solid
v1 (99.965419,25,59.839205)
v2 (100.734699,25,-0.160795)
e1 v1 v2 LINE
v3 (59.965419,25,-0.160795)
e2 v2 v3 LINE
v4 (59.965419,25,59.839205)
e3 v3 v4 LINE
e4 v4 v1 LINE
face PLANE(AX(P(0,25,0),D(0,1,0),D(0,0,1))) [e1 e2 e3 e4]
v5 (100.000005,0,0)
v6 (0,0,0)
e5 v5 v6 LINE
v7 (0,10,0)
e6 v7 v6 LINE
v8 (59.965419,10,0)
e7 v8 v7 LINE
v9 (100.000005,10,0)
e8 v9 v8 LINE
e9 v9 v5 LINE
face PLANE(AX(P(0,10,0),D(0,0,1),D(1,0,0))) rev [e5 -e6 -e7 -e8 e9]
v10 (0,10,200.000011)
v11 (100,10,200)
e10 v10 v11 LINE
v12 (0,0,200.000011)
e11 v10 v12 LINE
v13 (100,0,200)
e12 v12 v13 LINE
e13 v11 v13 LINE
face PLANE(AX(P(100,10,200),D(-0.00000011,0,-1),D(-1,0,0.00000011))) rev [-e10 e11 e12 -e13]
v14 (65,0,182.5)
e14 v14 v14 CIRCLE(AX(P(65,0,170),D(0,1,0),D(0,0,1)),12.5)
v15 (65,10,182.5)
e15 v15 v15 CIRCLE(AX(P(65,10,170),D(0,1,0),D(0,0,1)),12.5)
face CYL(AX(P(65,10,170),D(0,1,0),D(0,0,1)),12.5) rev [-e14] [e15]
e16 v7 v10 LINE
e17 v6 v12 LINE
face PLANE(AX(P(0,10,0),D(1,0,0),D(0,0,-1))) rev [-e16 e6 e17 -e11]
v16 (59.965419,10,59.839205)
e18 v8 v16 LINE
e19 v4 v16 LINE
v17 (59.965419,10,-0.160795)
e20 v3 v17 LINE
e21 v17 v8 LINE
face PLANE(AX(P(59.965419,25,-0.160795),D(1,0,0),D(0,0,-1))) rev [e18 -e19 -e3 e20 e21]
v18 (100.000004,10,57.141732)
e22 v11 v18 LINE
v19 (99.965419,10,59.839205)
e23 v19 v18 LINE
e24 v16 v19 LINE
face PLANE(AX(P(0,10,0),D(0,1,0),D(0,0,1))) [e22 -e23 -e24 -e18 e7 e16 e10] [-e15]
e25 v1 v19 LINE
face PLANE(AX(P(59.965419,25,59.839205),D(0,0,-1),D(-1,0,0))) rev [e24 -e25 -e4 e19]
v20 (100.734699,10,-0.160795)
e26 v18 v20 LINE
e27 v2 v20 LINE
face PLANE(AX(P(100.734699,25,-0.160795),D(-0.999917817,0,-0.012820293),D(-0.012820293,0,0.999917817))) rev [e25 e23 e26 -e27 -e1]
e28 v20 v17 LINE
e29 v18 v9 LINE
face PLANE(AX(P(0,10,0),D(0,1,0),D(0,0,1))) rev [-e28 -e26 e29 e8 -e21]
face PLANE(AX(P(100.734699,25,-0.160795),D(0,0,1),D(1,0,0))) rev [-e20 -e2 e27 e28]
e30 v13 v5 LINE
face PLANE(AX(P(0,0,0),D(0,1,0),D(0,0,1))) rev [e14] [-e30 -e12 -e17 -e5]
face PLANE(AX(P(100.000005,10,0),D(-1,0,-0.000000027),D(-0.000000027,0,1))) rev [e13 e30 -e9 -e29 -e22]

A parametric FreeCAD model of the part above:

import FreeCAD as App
import Part
import Sketcher
from FreeCAD import Vector
Q = App.Units.Quantity

doc = App.newDocument("Part")
body = doc.addObject("PartDesign::Body", "Body")

# Sketch on XZ plane
sketch1 = doc.addObject("Sketcher::SketchObject", "Sketch")
body.addObject(sketch1)
sketch1.AttachmentSupport = (doc.XZ_Plane, [""])
sketch1.MapMode = "FlatFace"
sketch1.addGeometry([
    Part.LineSegment(Vector(100.000005, 0, 0), Vector(0, 0, 0)),
    Part.LineSegment(Vector(0, 0, 0), Vector(0, 200.000011, 0)),
    Part.LineSegment(Vector(0, 200.000011, 0), Vector(100, 200, 0)),
    Part.LineSegment(Vector(100, 200, 0), Vector(100.000005, 0, 0)),
], False)
sketch1.addConstraint([
    Sketcher.Constraint("Coincident", 0, 2, 1, 1),
    Sketcher.Constraint("Coincident", 1, 2, 2, 1),
    Sketcher.Constraint("Coincident", 2, 2, 3, 1),
    Sketcher.Constraint("Coincident", 3, 2, 0, 1),
    Sketcher.Constraint("Horizontal", 0),
    Sketcher.Constraint("Vertical", 1),
    Sketcher.Constraint("Coincident", 0, 2, -1, 1),
    Sketcher.Constraint("Perpendicular", 2, 3),
    Sketcher.Constraint("Angle", 2, Q("-0.000006 deg")),
    Sketcher.Constraint("Distance", 2, Q("100 mm")),
    Sketcher.Constraint("Distance", 3, Q("200 mm")),
])
pad1 = doc.addObject("PartDesign::Pad", "Pad")
body.addObject(pad1)
pad1.Profile = sketch1
pad1.Length = 10
pad1.Reversed = True

# Sketch on XZ plane
sketch2 = doc.addObject("Sketcher::SketchObject", "Sketch001")
body.addObject(sketch2)
sketch2.AttachmentSupport = (doc.XZ_Plane, [""])
sketch2.MapMode = "FlatFace"
sketch2.AttachmentOffset = App.Placement(Vector(0, 0, -10), App.Rotation())
sketch2.addGeometry([
    Part.LineSegment(Vector(59.965419, -0.160795, 0), Vector(59.965419, 59.839205, 0)),
    Part.LineSegment(Vector(59.965419, 59.839205, 0), Vector(99.965419, 59.839205, 0)),
    Part.LineSegment(Vector(99.965419, 59.839205, 0), Vector(100.734699, -0.160795, 0)),
    Part.LineSegment(Vector(100.734699, -0.160795, 0), Vector(59.965419, -0.160795, 0)),
], False)
sketch2.addConstraint([
    Sketcher.Constraint("Coincident", 0, 2, 1, 1),
    Sketcher.Constraint("Coincident", 1, 2, 2, 1),
    Sketcher.Constraint("Coincident", 2, 2, 3, 1),
    Sketcher.Constraint("Coincident", 3, 2, 0, 1),
    Sketcher.Constraint("Vertical", 0),
    Sketcher.Constraint("Horizontal", 1),
    Sketcher.Constraint("Horizontal", 3),
    Sketcher.Constraint("DistanceX", 1, 1, 1, 2, Q("40 mm")),
    Sketcher.Constraint("DistanceY", 0, 1, 0, 2, Q("60 mm")),
    Sketcher.Constraint("DistanceX", 3, 2, 3, 1, Q("40.769281 mm")),
    Sketcher.Constraint("DistanceX", -1, 1, 2, 2, Q("100.734699 mm")),
    Sketcher.Constraint("DistanceY", -1, 1, 0, 2, Q("59.839205 mm")),
])
pad2 = doc.addObject("PartDesign::Pad", "Pad001")
body.addObject(pad2)
pad2.Profile = sketch2
pad2.Length = 15
pad2.Reversed = True

# Sketch on XZ plane
sketch3 = doc.addObject("Sketcher::SketchObject", "Sketch002")
body.addObject(sketch3)
sketch3.AttachmentSupport = (doc.XZ_Plane, [""])
sketch3.MapMode = "FlatFace"
sketch3.AttachmentOffset = App.Placement(Vector(0, 0, -10), App.Rotation())
sketch3.addGeometry(Part.Circle(Vector(65, 170, 0), Vector(0, 0, 1), 12.5), False)
sketch3.addConstraint([
    Sketcher.Constraint("Diameter", 0, Q("25 mm")),
    Sketcher.Constraint("DistanceX", -1, 1, 0, 3, Q("65 mm")),
    Sketcher.Constraint("DistanceY", -1, 1, 0, 3, Q("170 mm")),
])
doc.recompute()
hole = doc.addObject("PartDesign::Hole", "Hole")
body.addObject(hole)
hole.Profile = sketch3
hole.ThreadType = "None"
hole.Diameter = 25
hole.DepthType = "ThroughAll"
hole.Reversed = True

doc.recompute()
